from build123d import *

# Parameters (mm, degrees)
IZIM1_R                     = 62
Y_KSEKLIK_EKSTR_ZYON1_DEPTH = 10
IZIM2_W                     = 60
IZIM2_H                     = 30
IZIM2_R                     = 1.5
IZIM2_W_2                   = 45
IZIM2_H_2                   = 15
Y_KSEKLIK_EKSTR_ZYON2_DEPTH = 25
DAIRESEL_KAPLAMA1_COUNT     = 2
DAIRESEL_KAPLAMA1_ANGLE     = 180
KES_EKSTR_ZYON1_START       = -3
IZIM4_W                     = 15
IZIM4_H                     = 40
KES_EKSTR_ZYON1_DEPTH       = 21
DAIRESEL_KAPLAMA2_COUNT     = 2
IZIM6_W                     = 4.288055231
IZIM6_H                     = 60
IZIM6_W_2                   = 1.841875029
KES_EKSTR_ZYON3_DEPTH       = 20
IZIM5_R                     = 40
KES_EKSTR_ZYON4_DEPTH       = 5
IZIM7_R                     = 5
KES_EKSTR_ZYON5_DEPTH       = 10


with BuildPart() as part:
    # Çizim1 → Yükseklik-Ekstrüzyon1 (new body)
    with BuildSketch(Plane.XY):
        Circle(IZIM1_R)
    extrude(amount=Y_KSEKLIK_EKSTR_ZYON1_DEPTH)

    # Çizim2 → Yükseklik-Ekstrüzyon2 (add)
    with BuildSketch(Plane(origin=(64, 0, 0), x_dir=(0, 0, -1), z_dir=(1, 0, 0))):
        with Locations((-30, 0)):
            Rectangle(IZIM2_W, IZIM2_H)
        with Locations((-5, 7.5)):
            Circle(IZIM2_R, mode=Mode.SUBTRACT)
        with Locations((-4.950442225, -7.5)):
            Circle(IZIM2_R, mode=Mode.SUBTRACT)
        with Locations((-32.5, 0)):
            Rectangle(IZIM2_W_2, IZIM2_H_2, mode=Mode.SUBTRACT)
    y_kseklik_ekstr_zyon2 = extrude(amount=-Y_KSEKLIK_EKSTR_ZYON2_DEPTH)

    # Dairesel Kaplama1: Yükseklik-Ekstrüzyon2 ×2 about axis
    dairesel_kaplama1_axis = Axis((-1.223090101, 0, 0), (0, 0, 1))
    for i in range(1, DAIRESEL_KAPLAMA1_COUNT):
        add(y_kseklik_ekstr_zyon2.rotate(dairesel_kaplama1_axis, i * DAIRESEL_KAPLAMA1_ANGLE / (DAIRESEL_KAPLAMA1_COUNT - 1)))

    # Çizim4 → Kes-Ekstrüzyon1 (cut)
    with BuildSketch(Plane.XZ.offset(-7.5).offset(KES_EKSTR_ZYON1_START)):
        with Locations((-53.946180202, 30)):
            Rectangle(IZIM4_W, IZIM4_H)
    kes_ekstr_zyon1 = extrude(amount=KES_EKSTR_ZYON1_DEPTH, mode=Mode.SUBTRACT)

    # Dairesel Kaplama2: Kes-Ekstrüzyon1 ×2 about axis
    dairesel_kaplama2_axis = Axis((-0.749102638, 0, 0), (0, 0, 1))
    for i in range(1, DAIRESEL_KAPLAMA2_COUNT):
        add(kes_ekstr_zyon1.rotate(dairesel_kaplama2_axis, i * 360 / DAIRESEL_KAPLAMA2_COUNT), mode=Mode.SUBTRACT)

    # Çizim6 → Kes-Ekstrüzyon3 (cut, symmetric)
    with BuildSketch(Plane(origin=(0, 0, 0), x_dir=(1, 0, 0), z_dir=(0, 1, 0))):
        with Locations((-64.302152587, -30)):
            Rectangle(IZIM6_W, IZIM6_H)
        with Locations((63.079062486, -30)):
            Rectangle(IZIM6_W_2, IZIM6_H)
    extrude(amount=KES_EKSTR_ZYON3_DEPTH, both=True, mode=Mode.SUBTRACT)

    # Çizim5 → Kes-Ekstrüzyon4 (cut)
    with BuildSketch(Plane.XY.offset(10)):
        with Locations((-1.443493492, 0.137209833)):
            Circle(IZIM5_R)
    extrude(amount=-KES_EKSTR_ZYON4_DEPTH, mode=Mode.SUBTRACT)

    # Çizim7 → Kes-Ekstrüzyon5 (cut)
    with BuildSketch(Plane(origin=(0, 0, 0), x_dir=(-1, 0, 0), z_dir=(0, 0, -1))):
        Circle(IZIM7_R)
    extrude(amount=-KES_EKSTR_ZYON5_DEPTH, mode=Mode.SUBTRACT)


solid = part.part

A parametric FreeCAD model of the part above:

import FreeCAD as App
import Part
import Sketcher

V = App.Vector


def add_polygon(sketch, points):
    """Adds a closed chain of lines whose ends are joined by coincident constraints."""
    first, n = sketch.GeometryCount, len(points)
    for a, b in zip(points, points[1:] + points[:1]):
        sketch.addGeometry(Part.LineSegment(App.Vector(*a, 0), App.Vector(*b, 0)), False)
    for i in range(n):
        sketch.addConstraint(Sketcher.Constraint("Coincident", first + i, 2, first + (i + 1) % n, 1))

doc = App.newDocument("Part")
params = doc.addObject("Spreadsheet::Sheet", "Params")
for row, (alias, value) in enumerate([
    ("sketch1_diameter", "124 mm"),
    ("pad1_length", "10 mm"),
    ("sketch2_diameter", "3 mm"),
    ("sketch2_width", "30 mm"),
    ("sketch2_width2", "15 mm"),
    ("sketch2_height", "60 mm"),
    ("sketch2_height2", "45 mm"),
    ("pad2_length", "25 mm"),
    ("sketch3_width", "15 mm"),
    ("sketch3_height", "40 mm"),
    ("pocket1_length", "21 mm"),
    ("sketch4_height", "60 mm"),
    ("pocket2_length", "40 mm"),
    ("sketch5_diameter", "80 mm"),
    ("pocket3_length", "5 mm"),
    ("sketch6_diameter", "10 mm"),
    ("pocket4_length", "10 mm"),
], start=1):
    params.set(f"A{row}", alias)
    params.set(f"B{row}", "=" + value)
    params.setAlias(f"B{row}", alias)

body = doc.addObject("PartDesign::Body", "Body")

sketch1 = body.newObject("Sketcher::SketchObject", "Sketch")
sketch1.AttachmentSupport = (doc.getObject("XY_Plane"), [""])
sketch1.MapMode = "FlatFace"
sketch1.addGeometry(Part.Circle(V(0, 0, 0), V(0, 0, 1), 62), False)
sketch1.addConstraint(Sketcher.Constraint("Coincident", 0, 3, -1, 1))
sketch1.addConstraint(Sketcher.Constraint("Diameter", 0, 124.0))
sketch1.setExpression("Constraints[1]", "Params.sketch1_diameter")
pad1 = body.newObject("PartDesign::Pad", "Pad")
pad1.Profile = sketch1
pad1.setExpression("Length", "Params.pad1_length")

sketch2 = body.newObject("Sketcher::SketchObject", "Sketch001")
sketch2.AttachmentSupport = (doc.getObject("YZ_Plane"), [""])
sketch2.MapMode = "FlatFace"
sketch2.AttachmentOffset = App.Placement(V(0, 0, 64), App.Rotation())
add_polygon(sketch2, [(15, 60), (-15, 60), (-15, 0), (15, 0)])
sketch2.addGeometry(Part.Circle(V(-7.5, 4.950442, 0), V(0, 0, 1), 1.5), False)
add_polygon(sketch2, [(-7.5, 10), (-7.5, 55), (7.5, 55), (7.5, 10)])
sketch2.addGeometry(Part.Circle(V(7.5, 5, 0), V(0, 0, 1), 1.5), False)
sketch2.addConstraint(Sketcher.Constraint("Horizontal", 0))
sketch2.addConstraint(Sketcher.Constraint("Vertical", 1))
sketch2.addConstraint(Sketcher.Constraint("Horizontal", 2))
sketch2.addConstraint(Sketcher.Constraint("Vertical", 3))
sketch2.addConstraint(Sketcher.Constraint("Vertical", 5))
sketch2.addConstraint(Sketcher.Constraint("Horizontal", 6))
sketch2.addConstraint(Sketcher.Constraint("Vertical", 7))
sketch2.addConstraint(Sketcher.Constraint("Horizontal", 8))
sketch2.addConstraint(Sketcher.Constraint("Equal", 4, 9))
sketch2.addConstraint(Sketcher.Constraint("Symmetric", 1, 2, 2, 2, -1, 1))
sketch2.addConstraint(Sketcher.Constraint("Vertical", 4, 3, 5, 2))
sketch2.addConstraint(Sketcher.Constraint("Vertical", 9, 3, 6, 2))
sketch2.addConstraint(Sketcher.Constraint("Diameter", 4, 3.0))
sketch2.addConstraint(Sketcher.Constraint("DistanceX", 0, 2, 0, 1, 30.0))
sketch2.addConstraint(Sketcher.Constraint("DistanceX", 6, 1, 6, 2, 15.0))
sketch2.addConstraint(Sketcher.Constraint("DistanceY", 1, 2, 1, 1, 60.0))
sketch2.addConstraint(Sketcher.Constraint("DistanceY", 5, 1, 5, 2, 45.0))
sketch2.addConstraint(Sketcher.Constraint("DistanceY", -1, 1, 9, 3, 5.0))
sketch2.addConstraint(Sketcher.Constraint("DistanceY", -1, 1, 5, 2, 55.0))
sketch2.addConstraint(Sketcher.Constraint("DistanceX", 4, 3, -1, 1, 7.5))
sketch2.addConstraint(Sketcher.Constraint("DistanceY", -1, 1, 4, 3, 4.950442))
sketch2.setExpression("Constraints[20]", "Params.sketch2_diameter")
sketch2.setExpression("Constraints[21]", "Params.sketch2_width")
sketch2.setExpression("Constraints[22]", "Params.sketch2_width2")
sketch2.setExpression("Constraints[23]", "Params.sketch2_height")
sketch2.setExpression("Constraints[24]", "Params.sketch2_height2")
pad2 = body.newObject("PartDesign::Pad", "Pad001")
pad2.Profile = sketch2
pad2.setExpression("Length", "Params.pad2_length")
pad2.Reversed = True
doc.recompute()

datumline = body.newObject("PartDesign::Line", "DatumLine")
datumline.Placement = App.Placement(V(-1.22309, 0, 0), App.Rotation(V(0, 0, 1), V(0, 0, 1)))
polarpattern = body.newObject("PartDesign::PolarPattern", "PolarPattern")
polarpattern.Originals = [pad2]
polarpattern.Axis = (datumline, [""])
polarpattern.Angle = 360
polarpattern.Occurrences = 2
body.Tip = polarpattern

sketch3 = body.newObject("Sketcher::SketchObject", "Sketch002")
sketch3.AttachmentSupport = (doc.getObject("XZ_Plane"), [""])
sketch3.MapMode = "FlatFace"
sketch3.AttachmentOffset = App.Placement(V(0, 0, -10.5), App.Rotation())
add_polygon(sketch3, [(-61.44618, 50), (-61.44618, 10), (-46.44618, 10), (-46.44618, 50)])
sketch3.addConstraint(Sketcher.Constraint("Vertical", 0))
sketch3.addConstraint(Sketcher.Constraint("Horizontal", 1))
sketch3.addConstraint(Sketcher.Constraint("Vertical", 2))
sketch3.addConstraint(Sketcher.Constraint("Horizontal", 3))
sketch3.addConstraint(Sketcher.Constraint("DistanceX", 1, 1, 1, 2, 15.0))
sketch3.addConstraint(Sketcher.Constraint("DistanceY", 0, 2, 0, 1, 40.0))
sketch3.addConstraint(Sketcher.Constraint("DistanceY", -1, 1, 0, 2, 10.0))
sketch3.addConstraint(Sketcher.Constraint("DistanceX", 0, 2, -1, 1, 61.44618))
sketch3.setExpression("Constraints[8]", "Params.sketch3_width")
sketch3.setExpression("Constraints[9]", "Params.sketch3_height")
pocket1 = body.newObject("PartDesign::Pocket", "Pocket")
pocket1.Profile = sketch3
pocket1.setExpression("Length", "Params.pocket1_length")
pocket1.Reversed = True
doc.recompute()

datumline2 = body.newObject("PartDesign::Line", "DatumLine001")
datumline2.Placement = App.Placement(V(-0.749103, 0, 0), App.Rotation(V(0, 0, 1), V(0, 0, 1)))
polarpattern2 = body.newObject("PartDesign::PolarPattern", "PolarPattern001")
polarpattern2.Originals = [pocket1]
polarpattern2.Axis = (datumline2, [""])
polarpattern2.Angle = 360
polarpattern2.Occurrences = 2
body.Tip = polarpattern2

sketch4 = body.newObject("Sketcher::SketchObject", "Sketch003")
sketch4.AttachmentSupport = (doc.getObject("XZ_Plane"), [""])
sketch4.MapMode = "FlatFace"
add_polygon(sketch4, [(-66.44618, 0), (-66.44618, 60), (-62.158125, 60), (-62.158125, 0)])
add_polygon(sketch4, [(62.158125, 0), (62.158125, 60), (64, 60), (64, 0)])
sketch4.addConstraint(Sketcher.Constraint("Vertical", 0))
sketch4.addConstraint(Sketcher.Constraint("Horizontal", 1))
sketch4.addConstraint(Sketcher.Constraint("Vertical", 2))
sketch4.addConstraint(Sketcher.Constraint("Horizontal", 3))
sketch4.addConstraint(Sketcher.Constraint("Vertical", 4))
sketch4.addConstraint(Sketcher.Constraint("Horizontal", 5))
sketch4.addConstraint(Sketcher.Constraint("Vertical", 6))
sketch4.addConstraint(Sketcher.Constraint("Horizontal", 7))
sketch4.addConstraint(Sketcher.Constraint("Symmetric", 2, 2, 7, 2, -1, 1))
sketch4.addConstraint(Sketcher.Constraint("PointOnObject", 2, 2, -1))
sketch4.addConstraint(Sketcher.Constraint("Horizontal", 1, 2, 4, 2))
sketch4.addConstraint(Sketcher.Constraint("DistanceY", 0, 1, 0, 2, 60.0))
sketch4.addConstraint(Sketcher.Constraint("DistanceX", -1, 1, 5, 2, 64.0))
sketch4.addConstraint(Sketcher.Constraint("DistanceX", 1, 1, 1, 2, 4.288055))
sketch4.addConstraint(Sketcher.Constraint("DistanceX", 5, 1, 5, 2, 1.841875))
sketch4.setExpression("Constraints[19]", "Params.sketch4_height")
pocket2 = body.newObject("PartDesign::Pocket", "Pocket001")
pocket2.Profile = sketch4
pocket2.setExpression("Length", "Params.pocket2_length")
pocket2.Midplane = True

sketch5 = body.newObject("Sketcher::SketchObject", "Sketch004")
sketch5.AttachmentSupport = (doc.getObject("XY_Plane"), [""])
sketch5.MapMode = "FlatFace"
sketch5.AttachmentOffset = App.Placement(V(0, 0, 10), App.Rotation())
sketch5.addGeometry(Part.Circle(V(-1.443493, 0.13721, 0), V(0, 0, 1), 40), False)
sketch5.addConstraint(Sketcher.Constraint("Diameter", 0, 80.0))
sketch5.addConstraint(Sketcher.Constraint("DistanceY", -1, 1, 0, 3, 0.13721))
sketch5.addConstraint(Sketcher.Constraint("DistanceX", 0, 3, -1, 1, 1.443493))
sketch5.setExpression("Constraints[0]", "Params.sketch5_diameter")
pocket3 = body.newObject("PartDesign::Pocket", "Pocket002")
pocket3.Profile = sketch5
pocket3.setExpression("Length", "Params.pocket3_length")

sketch6 = body.newObject("Sketcher::SketchObject", "Sketch005")
sketch6.AttachmentSupport = (doc.getObject("XY_Plane"), [""])
sketch6.MapMode = "FlatFace"
sketch6.addGeometry(Part.Circle(V(0, 0, 0), V(0, 0, 1), 5), False)
sketch6.addConstraint(Sketcher.Constraint("Coincident", 0, 3, -1, 1))
sketch6.addConstraint(Sketcher.Constraint("Diameter", 0, 10.0))
sketch6.setExpression("Constraints[1]", "Params.sketch6_diameter")
pocket4 = body.newObject("PartDesign::Pocket", "Pocket003")
pocket4.Profile = sketch6
pocket4.setExpression("Length", "Params.pocket4_length")
pocket4.Reversed = True

doc.recompute()
